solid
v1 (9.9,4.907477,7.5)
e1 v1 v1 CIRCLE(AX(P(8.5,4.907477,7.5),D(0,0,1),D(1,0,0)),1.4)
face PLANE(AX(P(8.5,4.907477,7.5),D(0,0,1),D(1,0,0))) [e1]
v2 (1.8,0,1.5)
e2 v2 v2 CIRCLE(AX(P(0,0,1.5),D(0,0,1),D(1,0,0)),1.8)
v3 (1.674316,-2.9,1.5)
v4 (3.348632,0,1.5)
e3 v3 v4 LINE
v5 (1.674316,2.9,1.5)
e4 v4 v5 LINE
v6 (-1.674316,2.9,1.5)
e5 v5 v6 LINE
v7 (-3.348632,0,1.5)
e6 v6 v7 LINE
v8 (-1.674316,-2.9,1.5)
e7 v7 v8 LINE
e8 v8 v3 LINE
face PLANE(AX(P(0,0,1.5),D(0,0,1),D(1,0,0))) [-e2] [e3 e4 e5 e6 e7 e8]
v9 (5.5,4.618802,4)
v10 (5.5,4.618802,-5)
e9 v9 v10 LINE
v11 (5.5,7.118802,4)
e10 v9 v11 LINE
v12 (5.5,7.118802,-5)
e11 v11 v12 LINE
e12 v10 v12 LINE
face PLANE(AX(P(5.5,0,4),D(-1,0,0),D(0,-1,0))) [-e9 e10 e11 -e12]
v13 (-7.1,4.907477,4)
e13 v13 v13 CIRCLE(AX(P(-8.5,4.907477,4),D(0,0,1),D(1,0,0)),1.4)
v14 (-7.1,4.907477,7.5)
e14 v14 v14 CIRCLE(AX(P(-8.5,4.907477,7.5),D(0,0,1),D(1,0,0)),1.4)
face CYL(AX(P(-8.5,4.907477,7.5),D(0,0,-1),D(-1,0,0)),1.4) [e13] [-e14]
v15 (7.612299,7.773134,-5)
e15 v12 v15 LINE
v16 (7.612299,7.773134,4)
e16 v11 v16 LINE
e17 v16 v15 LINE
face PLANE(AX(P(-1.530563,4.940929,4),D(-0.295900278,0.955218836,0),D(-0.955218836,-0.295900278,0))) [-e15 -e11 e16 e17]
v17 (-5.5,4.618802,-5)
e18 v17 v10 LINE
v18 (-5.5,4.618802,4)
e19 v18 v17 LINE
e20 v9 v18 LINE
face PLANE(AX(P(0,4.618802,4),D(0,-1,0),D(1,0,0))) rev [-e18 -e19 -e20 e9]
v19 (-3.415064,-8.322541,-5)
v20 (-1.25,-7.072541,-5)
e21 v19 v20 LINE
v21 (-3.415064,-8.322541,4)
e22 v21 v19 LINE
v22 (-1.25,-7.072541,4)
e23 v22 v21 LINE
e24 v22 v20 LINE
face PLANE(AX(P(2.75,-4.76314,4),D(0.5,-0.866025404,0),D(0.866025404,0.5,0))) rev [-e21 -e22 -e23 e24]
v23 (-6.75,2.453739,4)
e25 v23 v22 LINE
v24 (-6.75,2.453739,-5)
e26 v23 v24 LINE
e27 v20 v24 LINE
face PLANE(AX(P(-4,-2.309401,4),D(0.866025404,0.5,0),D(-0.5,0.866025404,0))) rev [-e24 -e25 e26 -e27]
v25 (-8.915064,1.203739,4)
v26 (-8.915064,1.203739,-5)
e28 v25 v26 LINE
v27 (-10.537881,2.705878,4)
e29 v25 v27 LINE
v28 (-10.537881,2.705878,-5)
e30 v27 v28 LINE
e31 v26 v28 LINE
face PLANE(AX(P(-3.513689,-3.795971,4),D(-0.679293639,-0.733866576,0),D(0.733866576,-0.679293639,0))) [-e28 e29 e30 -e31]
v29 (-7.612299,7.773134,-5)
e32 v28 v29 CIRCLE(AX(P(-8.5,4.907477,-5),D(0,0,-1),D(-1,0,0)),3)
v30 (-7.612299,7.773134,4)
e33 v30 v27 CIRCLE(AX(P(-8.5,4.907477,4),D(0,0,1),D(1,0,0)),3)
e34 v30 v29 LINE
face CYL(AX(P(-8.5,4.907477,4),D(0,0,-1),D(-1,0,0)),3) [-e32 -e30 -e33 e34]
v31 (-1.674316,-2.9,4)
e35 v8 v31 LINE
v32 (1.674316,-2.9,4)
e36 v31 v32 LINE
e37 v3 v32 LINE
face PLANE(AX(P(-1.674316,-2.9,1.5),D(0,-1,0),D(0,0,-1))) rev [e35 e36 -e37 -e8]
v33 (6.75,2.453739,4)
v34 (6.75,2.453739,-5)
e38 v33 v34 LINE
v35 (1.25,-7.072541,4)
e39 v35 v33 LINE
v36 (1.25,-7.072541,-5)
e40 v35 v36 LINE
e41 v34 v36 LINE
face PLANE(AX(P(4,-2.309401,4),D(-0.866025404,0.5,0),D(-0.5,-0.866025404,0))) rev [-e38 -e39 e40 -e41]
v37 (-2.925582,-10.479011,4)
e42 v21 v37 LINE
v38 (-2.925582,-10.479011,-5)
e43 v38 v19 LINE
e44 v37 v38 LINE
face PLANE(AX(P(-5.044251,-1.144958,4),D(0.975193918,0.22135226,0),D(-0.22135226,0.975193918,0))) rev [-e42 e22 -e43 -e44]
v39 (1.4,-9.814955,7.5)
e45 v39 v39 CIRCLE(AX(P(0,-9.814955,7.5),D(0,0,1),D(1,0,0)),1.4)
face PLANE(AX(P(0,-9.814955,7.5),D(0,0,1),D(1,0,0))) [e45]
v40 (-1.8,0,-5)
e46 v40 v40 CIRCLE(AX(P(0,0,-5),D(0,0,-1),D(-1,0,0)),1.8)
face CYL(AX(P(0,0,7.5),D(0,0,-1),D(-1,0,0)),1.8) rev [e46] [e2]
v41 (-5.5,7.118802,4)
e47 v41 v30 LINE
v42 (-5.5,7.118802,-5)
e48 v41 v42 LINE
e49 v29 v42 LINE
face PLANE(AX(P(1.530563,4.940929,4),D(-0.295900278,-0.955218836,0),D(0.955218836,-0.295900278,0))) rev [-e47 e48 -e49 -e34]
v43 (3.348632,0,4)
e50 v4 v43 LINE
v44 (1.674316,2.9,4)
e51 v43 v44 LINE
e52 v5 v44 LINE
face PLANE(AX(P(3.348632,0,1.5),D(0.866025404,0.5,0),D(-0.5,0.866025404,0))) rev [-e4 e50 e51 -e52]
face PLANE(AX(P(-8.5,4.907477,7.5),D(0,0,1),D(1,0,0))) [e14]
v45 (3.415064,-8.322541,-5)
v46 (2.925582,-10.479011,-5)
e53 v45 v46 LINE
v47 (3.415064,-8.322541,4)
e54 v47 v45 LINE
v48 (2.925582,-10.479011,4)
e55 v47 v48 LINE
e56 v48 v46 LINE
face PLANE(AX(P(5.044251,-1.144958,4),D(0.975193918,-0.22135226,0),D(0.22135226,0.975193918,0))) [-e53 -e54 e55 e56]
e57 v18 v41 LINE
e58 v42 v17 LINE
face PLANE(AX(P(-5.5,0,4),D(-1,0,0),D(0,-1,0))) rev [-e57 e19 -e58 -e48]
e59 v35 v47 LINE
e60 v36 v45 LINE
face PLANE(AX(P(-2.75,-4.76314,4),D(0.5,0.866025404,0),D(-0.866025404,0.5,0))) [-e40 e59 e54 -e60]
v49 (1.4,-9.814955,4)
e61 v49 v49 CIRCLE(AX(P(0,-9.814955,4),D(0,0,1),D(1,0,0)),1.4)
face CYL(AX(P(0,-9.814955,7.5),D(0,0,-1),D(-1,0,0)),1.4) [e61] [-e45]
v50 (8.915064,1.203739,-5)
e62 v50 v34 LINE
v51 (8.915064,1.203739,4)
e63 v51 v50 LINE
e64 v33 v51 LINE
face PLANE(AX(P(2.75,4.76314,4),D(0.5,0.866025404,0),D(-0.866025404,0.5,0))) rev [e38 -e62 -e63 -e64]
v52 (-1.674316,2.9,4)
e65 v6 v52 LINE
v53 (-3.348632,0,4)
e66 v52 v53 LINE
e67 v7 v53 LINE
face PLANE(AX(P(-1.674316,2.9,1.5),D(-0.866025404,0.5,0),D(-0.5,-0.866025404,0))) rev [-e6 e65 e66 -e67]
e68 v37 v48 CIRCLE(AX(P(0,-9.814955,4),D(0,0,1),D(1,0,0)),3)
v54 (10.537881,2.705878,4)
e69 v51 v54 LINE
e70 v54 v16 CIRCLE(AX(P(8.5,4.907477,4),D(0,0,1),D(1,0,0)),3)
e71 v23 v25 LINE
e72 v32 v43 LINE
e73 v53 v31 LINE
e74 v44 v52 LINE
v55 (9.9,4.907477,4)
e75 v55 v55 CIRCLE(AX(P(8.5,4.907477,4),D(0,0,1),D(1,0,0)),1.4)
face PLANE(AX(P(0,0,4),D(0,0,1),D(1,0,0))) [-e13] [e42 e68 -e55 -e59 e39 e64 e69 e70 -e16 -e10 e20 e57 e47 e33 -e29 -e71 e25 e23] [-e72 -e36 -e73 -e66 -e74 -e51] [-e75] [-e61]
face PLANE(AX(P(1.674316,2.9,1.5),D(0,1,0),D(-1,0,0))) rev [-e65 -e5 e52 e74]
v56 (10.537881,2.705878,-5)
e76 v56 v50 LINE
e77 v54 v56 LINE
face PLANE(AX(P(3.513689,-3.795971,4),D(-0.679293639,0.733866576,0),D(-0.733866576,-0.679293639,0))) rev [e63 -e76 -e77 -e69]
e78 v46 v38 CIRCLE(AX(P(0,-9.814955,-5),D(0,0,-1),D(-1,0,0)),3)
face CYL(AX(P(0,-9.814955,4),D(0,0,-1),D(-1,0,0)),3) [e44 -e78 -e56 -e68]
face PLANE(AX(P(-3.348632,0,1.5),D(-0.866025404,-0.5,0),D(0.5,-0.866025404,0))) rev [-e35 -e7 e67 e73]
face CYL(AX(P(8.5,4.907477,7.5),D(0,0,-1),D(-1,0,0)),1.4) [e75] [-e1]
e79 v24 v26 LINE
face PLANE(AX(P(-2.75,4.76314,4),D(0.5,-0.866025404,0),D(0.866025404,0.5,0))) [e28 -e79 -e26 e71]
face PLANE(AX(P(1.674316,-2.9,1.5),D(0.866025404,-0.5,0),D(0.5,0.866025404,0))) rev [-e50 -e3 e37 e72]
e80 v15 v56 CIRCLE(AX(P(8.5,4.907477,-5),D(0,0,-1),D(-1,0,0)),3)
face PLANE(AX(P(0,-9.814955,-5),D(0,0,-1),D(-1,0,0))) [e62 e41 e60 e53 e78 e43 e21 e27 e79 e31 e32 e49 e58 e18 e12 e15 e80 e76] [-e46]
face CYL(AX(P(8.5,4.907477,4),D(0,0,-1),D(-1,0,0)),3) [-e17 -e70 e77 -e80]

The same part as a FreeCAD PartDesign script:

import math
import FreeCAD as App
import Part
import Sketcher
Q = App.Units.Quantity

doc = App.newDocument("Part")
body = doc.addObject("PartDesign::Body", "Body")

# Sketch on XY plane
sketch1 = body.newObject("Sketcher::SketchObject", "Sketch")
sketch1.AttachmentSupport = (doc.getObject("XY_Plane"), [""])
sketch1.MapMode = "FlatFace"
sketch1.addGeometry([
    Part.LineSegment(App.Vector(-8.9, 1.2, 0), App.Vector(-6.8, 2.5, 0)),  # 0
    Part.LineSegment(App.Vector(-6.8, 2.5, 0), App.Vector(-1.2, -7.1, 0)),  # 1
    Part.LineSegment(App.Vector(-1.2, -7.1, 0), App.Vector(-3.4, -8.3, 0)),  # 2
    Part.LineSegment(App.Vector(-3.4, -8.3, 0), App.Vector(-2.9, -10.5, 0)),  # 3
    Part.ArcOfCircle(Part.Circle(App.Vector(0, -9.8, 0), App.Vector(0, 0, 1), 3), math.radians(-167), math.radians(-13)),  # 4
    Part.LineSegment(App.Vector(2.9, -10.5, 0), App.Vector(3.4, -8.3, 0)),  # 5
    Part.LineSegment(App.Vector(3.4, -8.3, 0), App.Vector(1.2, -7.1, 0)),  # 6
    Part.LineSegment(App.Vector(1.2, -7.1, 0), App.Vector(6.8, 2.5, 0)),  # 7
    Part.LineSegment(App.Vector(6.8, 2.5, 0), App.Vector(8.9, 1.2, 0)),  # 8
    Part.LineSegment(App.Vector(8.9, 1.2, 0), App.Vector(10.5, 2.7, 0)),  # 9
    Part.ArcOfCircle(Part.Circle(App.Vector(8.5, 4.9, 0), App.Vector(0, 0, 1), 3), math.radians(-47), math.radians(107)),  # 10
    Part.LineSegment(App.Vector(7.6, 7.8, 0), App.Vector(5.5, 7.1, 0)),  # 11
    Part.LineSegment(App.Vector(5.5, 7.1, 0), App.Vector(5.5, 4.6, 0)),  # 12
    Part.LineSegment(App.Vector(5.5, 4.6, 0), App.Vector(-5.5, 4.6, 0)),  # 13
    Part.LineSegment(App.Vector(-5.5, 4.6, 0), App.Vector(-5.5, 7.1, 0)),  # 14
    Part.LineSegment(App.Vector(-5.5, 7.1, 0), App.Vector(-7.6, 7.8, 0)),  # 15
    Part.ArcOfCircle(Part.Circle(App.Vector(-8.5, 4.9, 0), App.Vector(0, 0, 1), 3), math.radians(73), math.radians(227)),  # 16
    Part.LineSegment(App.Vector(-10.5, 2.7, 0), App.Vector(-8.9, 1.2, 0)),  # 17
], False)
sketch1.addConstraint([
    Sketcher.Constraint("Coincident", 0, 2, 1, 1),
    Sketcher.Constraint("Coincident", 1, 2, 2, 1),
    Sketcher.Constraint("Coincident", 2, 2, 3, 1),
    Sketcher.Constraint("Tangent", 3, 2, 4, 1),
    Sketcher.Constraint("Tangent", 4, 2, 5, 1),
    Sketcher.Constraint("Coincident", 5, 2, 6, 1),
    Sketcher.Constraint("Coincident", 6, 2, 7, 1),
    Sketcher.Constraint("Coincident", 7, 2, 8, 1),
    Sketcher.Constraint("Coincident", 8, 2, 9, 1),
    Sketcher.Constraint("Tangent", 9, 2, 10, 1),
    Sketcher.Constraint("Tangent", 10, 2, 11, 1),
    Sketcher.Constraint("Coincident", 11, 2, 12, 1),
    Sketcher.Constraint("Coincident", 12, 2, 13, 1),
    Sketcher.Constraint("Coincident", 13, 2, 14, 1),
    Sketcher.Constraint("Coincident", 14, 2, 15, 1),
    Sketcher.Constraint("Tangent", 15, 2, 16, 1),
    Sketcher.Constraint("Tangent", 16, 2, 17, 1),
    Sketcher.Constraint("Coincident", 17, 2, 0, 1),
    Sketcher.Constraint("Vertical", 12),
    Sketcher.Constraint("Horizontal", 13),
    Sketcher.Constraint("Vertical", 14),
    Sketcher.Constraint("Equal", 4, 10),
    Sketcher.Constraint("Equal", 10, 16),
    Sketcher.Constraint("Symmetric", 10, 3, 16, 3, -2),
    Sketcher.Constraint("Symmetric", 3, 2, 4, 2, -2),
    Sketcher.Constraint("Symmetric", 1, 2, 6, 2, -2),
    Sketcher.Constraint("Symmetric", 0, 2, 7, 2, -2),
    Sketcher.Constraint("Symmetric", 11, 2, 14, 2, -2),
    Sketcher.Constraint("Symmetric", 8, 2, 17, 2, -2),
    Sketcher.Constraint("Perpendicular", 0, 1),
    Sketcher.Constraint("Perpendicular", 1, 2),
    Sketcher.Constraint("Perpendicular", 6, 7),
    Sketcher.Constraint("Equal", 0, 2),
    Sketcher.Constraint("Equal", 5, 9),
    Sketcher.Constraint("Equal", 9, 11),
    Sketcher.Constraint("Radius", 4, 3.0),
    Sketcher.Constraint("DistanceX", 13, 2, 13, 1, 11.0),
    Sketcher.Constraint("Angle", 0, Q("30 deg")),
    Sketcher.Constraint("Distance", 1, 11.0),
    Sketcher.Constraint("DistanceY", 12, 2, 12, 1, 2.5),
    Sketcher.Constraint("DistanceX", 16, 3, 10, 3, 17.0),
    Sketcher.Constraint("DistanceX", 1, 2, 7, 2, 8.0),
    Sketcher.Constraint("Distance", 0, 2.5),
    Sketcher.Constraint("DistanceX", -1, 1, 10, 2, 7.612299),
    Sketcher.Constraint("DistanceY", -1, 1, 0, 2, 2.453739),
])
pad1 = body.newObject("PartDesign::Pad", "Pad")
pad1.Profile = sketch1
pad1.Length = 4

# Sketch on XY plane
sketch2 = body.newObject("Sketcher::SketchObject", "Sketch001")
sketch2.AttachmentSupport = (doc.getObject("XY_Plane"), [""])
sketch2.MapMode = "FlatFace"
sketch2.AttachmentOffset = App.Placement(App.Vector(0, 0, 4), App.Rotation())
sketch2.addGeometry([
    Part.Circle(App.Vector(-8.5, 4.9, 0), App.Vector(0, 0, 1), 1.4),
    Part.Circle(App.Vector(0, -9.8, 0), App.Vector(0, 0, 1), 1.4),
    Part.Circle(App.Vector(8.5, 4.9, 0), App.Vector(0, 0, 1), 1.4),
], False)
sketch2.addConstraint([
    Sketcher.Constraint("Equal", 0, 1),
    Sketcher.Constraint("Equal", 1, 2),
    Sketcher.Constraint("Symmetric", 0, 3, 2, 3, -2),
    Sketcher.Constraint("PointOnObject", 1, 3, -2),
    Sketcher.Constraint("Diameter", 0, 2.8),
    Sketcher.Constraint("DistanceX", 0, 3, 2, 3, 17.0),
    Sketcher.Constraint("DistanceY", 1, 3, 0, 3, 14.722432),
    Sketcher.Constraint("DistanceY", -1, 1, 0, 3, 4.907477),
])
pad2 = body.newObject("PartDesign::Pad", "Pad001")
pad2.Profile = sketch2
pad2.Length = 3.5

# Sketch on XY plane
sketch3 = body.newObject("Sketcher::SketchObject", "Sketch002")
sketch3.AttachmentSupport = (doc.getObject("XY_Plane"), [""])
sketch3.MapMode = "FlatFace"
sketch3.AttachmentOffset = App.Placement(App.Vector(0, 0, 4), App.Rotation())
sketch3.addGeometry([
    Part.LineSegment(App.Vector(-1.7, -2.9, 0), App.Vector(1.7, -2.9, 0)),  # 0
    Part.LineSegment(App.Vector(1.7, -2.9, 0), App.Vector(3.3, 0, 0)),  # 1
    Part.LineSegment(App.Vector(3.3, 0, 0), App.Vector(1.7, 2.9, 0)),  # 2
    Part.LineSegment(App.Vector(1.7, 2.9, 0), App.Vector(-1.7, 2.9, 0)),  # 3
    Part.LineSegment(App.Vector(-1.7, 2.9, 0), App.Vector(-3.3, 0, 0)),  # 4
    Part.LineSegment(App.Vector(-3.3, 0, 0), App.Vector(-1.7, -2.9, 0)),  # 5
], False)
sketch3.addConstraint([
    Sketcher.Constraint("Coincident", 0, 2, 1, 1),
    Sketcher.Constraint("Coincident", 1, 2, 2, 1),
    Sketcher.Constraint("Coincident", 2, 2, 3, 1),
    Sketcher.Constraint("Coincident", 3, 2, 4, 1),
    Sketcher.Constraint("Coincident", 4, 2, 5, 1),
    Sketcher.Constraint("Coincident", 5, 2, 0, 1),
    Sketcher.Constraint("Horizontal", 0),
    Sketcher.Constraint("Horizontal", 3),
    Sketcher.Constraint("Symmetric", 0, 2, 3, 2, -1, 1),
    Sketcher.Constraint("Symmetric", 1, 2, 4, 2, -1, 1),
    Sketcher.Constraint("PointOnObject", 1, 2, -1),
    Sketcher.Constraint("Parallel", 2, 5),
    Sketcher.Constraint("Vertical", 0, 2, 2, 2),
    Sketcher.Constraint("Angle", 1, Q("60 deg")),
    Sketcher.Constraint("DistanceY", 0, 2, -1, 1, 2.9),
    Sketcher.Constraint("DistanceX", 0, 1, 0, 2, 3.348632),
])
pocket1 = body.newObject("PartDesign::Pocket", "Pocket")
pocket1.Profile = sketch3
pocket1.Length = 2.5

# Sketch on XY plane
sketch4 = body.newObject("Sketcher::SketchObject", "Sketch003")
sketch4.AttachmentSupport = (doc.getObject("XY_Plane"), [""])
sketch4.MapMode = "FlatFace"
sketch4.addGeometry(Part.Circle(App.Vector(0, 0, 0), App.Vector(0, 0, 1), 1.8), False)
sketch4.addConstraint([
    Sketcher.Constraint("Coincident", 0, 3, -1, 1),
    Sketcher.Constraint("Diameter", 0, 3.6),
])
pocket2 = body.newObject("PartDesign::Pocket", "Pocket001")
pocket2.Profile = sketch4
pocket2.Type = "ThroughAll"
pocket2.Reversed = True

# Sketch on XY plane
sketch5 = body.newObject("Sketcher::SketchObject", "Sketch004")
sketch5.AttachmentSupport = (doc.getObject("XY_Plane"), [""])
sketch5.MapMode = "FlatFace"
sketch5.addGeometry([
    Part.LineSegment(App.Vector(8.9, 1.2, 0), App.Vector(6.8, 2.5, 0)),  # 0
    Part.LineSegment(App.Vector(6.8, 2.5, 0), App.Vector(1.2, -7.1, 0)),  # 1
    Part.LineSegment(App.Vector(1.2, -7.1, 0), App.Vector(3.4, -8.3, 0)),  # 2
    Part.LineSegment(App.Vector(3.4, -8.3, 0), App.Vector(2.9, -10.5, 0)),  # 3
    Part.ArcOfCircle(Part.Circle(App.Vector(0, -9.8, 0), App.Vector(0, 0, 1), 3), math.radians(-167), math.radians(-13)),  # 4
    Part.LineSegment(App.Vector(-2.9, -10.5, 0), App.Vector(-3.4, -8.3, 0)),  # 5
    Part.LineSegment(App.Vector(-3.4, -8.3, 0), App.Vector(-1.2, -7.1, 0)),  # 6
    Part.LineSegment(App.Vector(-1.2, -7.1, 0), App.Vector(-6.8, 2.5, 0)),  # 7
    Part.LineSegment(App.Vector(-6.8, 2.5, 0), App.Vector(-8.9, 1.2, 0)),  # 8
    Part.LineSegment(App.Vector(-8.9, 1.2, 0), App.Vector(-10.5, 2.7, 0)),  # 9
    Part.ArcOfCircle(Part.Circle(App.Vector(-8.5, 4.9, 0), App.Vector(0, 0, 1), 3), math.radians(73), math.radians(227)),  # 10
    Part.LineSegment(App.Vector(-7.6, 7.8, 0), App.Vector(-5.5, 7.1, 0)),  # 11
    Part.LineSegment(App.Vector(-5.5, 7.1, 0), App.Vector(-5.5, 4.6, 0)),  # 12
    Part.LineSegment(App.Vector(-5.5, 4.6, 0), App.Vector(5.5, 4.6, 0)),  # 13
    Part.LineSegment(App.Vector(5.5, 4.6, 0), App.Vector(5.5, 7.1, 0)),  # 14
    Part.LineSegment(App.Vector(5.5, 7.1, 0), App.Vector(7.6, 7.8, 0)),  # 15
    Part.ArcOfCircle(Part.Circle(App.Vector(8.5, 4.9, 0), App.Vector(0, 0, 1), 3), math.radians(-47), math.radians(107)),  # 16
    Part.LineSegment(App.Vector(10.5, 2.7, 0), App.Vector(8.9, 1.2, 0)),  # 17
    Part.Circle(App.Vector(0, 0, 0), App.Vector(0, 0, 1), 1.8),  # 18
], False)
sketch5.addConstraint([
    Sketcher.Constraint("Coincident", 0, 2, 1, 1),
    Sketcher.Constraint("Coincident", 1, 2, 2, 1),
    Sketcher.Constraint("Coincident", 2, 2, 3, 1),
    Sketcher.Constraint("Tangent", 3, 2, 4, 2),
    Sketcher.Constraint("Tangent", 4, 1, 5, 1),
    Sketcher.Constraint("Coincident", 5, 2, 6, 1),
    Sketcher.Constraint("Coincident", 6, 2, 7, 1),
    Sketcher.Constraint("Coincident", 7, 2, 8, 1),
    Sketcher.Constraint("Coincident", 8, 2, 9, 1),
    Sketcher.Constraint("Tangent", 9, 2, 10, 2),
    Sketcher.Constraint("Tangent", 10, 1, 11, 1),
    Sketcher.Constraint("Coincident", 11, 2, 12, 1),
    Sketcher.Constraint("Coincident", 12, 2, 13, 1),
    Sketcher.Constraint("Coincident", 13, 2, 14, 1),
    Sketcher.Constraint("Coincident", 14, 2, 15, 1),
    Sketcher.Constraint("Tangent", 15, 2, 16, 2),
    Sketcher.Constraint("Tangent", 16, 1, 17, 1),
    Sketcher.Constraint("Coincident", 17, 2, 0, 1),
    Sketcher.Constraint("Vertical", 12),
    Sketcher.Constraint("Horizontal", 13),
    Sketcher.Constraint("Vertical", 14),
    Sketcher.Constraint("Coincident", 18, 3, -1, 1),
    Sketcher.Constraint("Equal", 4, 10),
    Sketcher.Constraint("Equal", 10, 16),
    Sketcher.Constraint("Symmetric", 10, 3, 16, 3, -2),
    Sketcher.Constraint("Symmetric", 3, 2, 4, 1, -2),
    Sketcher.Constraint("Symmetric", 1, 2, 6, 2, -2),
    Sketcher.Constraint("Symmetric", 0, 2, 7, 2, -2),
    Sketcher.Constraint("Symmetric", 11, 2, 14, 2, -2),
    Sketcher.Constraint("Symmetric", 8, 2, 17, 2, -2),
    Sketcher.Constraint("Perpendicular", 0, 1),
    Sketcher.Constraint("Perpendicular", 1, 2),
    Sketcher.Constraint("Perpendicular", 6, 7),
    Sketcher.Constraint("Equal", 0, 2),
    Sketcher.Constraint("Equal", 5, 9),
    Sketcher.Constraint("Equal", 9, 11),
    Sketcher.Constraint("Radius", 4, 3.0),
    Sketcher.Constraint("Diameter", 18, 3.6),
    Sketcher.Constraint("DistanceX", 13, 1, 13, 2, 11.0),
    Sketcher.Constraint("Angle", 0, Q("150 deg")),
    Sketcher.Constraint("Distance", 1, 11.0),
    Sketcher.Constraint("DistanceY", 12, 2, 12, 1, 2.5),
    Sketcher.Constraint("DistanceX", 10, 3, 16, 3, 17.0),
    Sketcher.Constraint("DistanceX", 7, 2, 1, 2, 8.0),
    Sketcher.Constraint("Distance", 0, 2.5),
    Sketcher.Constraint("DistanceX", 10, 1, -1, 1, 7.612299),
    Sketcher.Constraint("DistanceY", -1, 1, 0, 2, 2.453739),
])
pad3 = body.newObject("PartDesign::Pad", "Pad002")
pad3.Profile = sketch5
pad3.Length = 5
pad3.Reversed = True

doc.recompute()
